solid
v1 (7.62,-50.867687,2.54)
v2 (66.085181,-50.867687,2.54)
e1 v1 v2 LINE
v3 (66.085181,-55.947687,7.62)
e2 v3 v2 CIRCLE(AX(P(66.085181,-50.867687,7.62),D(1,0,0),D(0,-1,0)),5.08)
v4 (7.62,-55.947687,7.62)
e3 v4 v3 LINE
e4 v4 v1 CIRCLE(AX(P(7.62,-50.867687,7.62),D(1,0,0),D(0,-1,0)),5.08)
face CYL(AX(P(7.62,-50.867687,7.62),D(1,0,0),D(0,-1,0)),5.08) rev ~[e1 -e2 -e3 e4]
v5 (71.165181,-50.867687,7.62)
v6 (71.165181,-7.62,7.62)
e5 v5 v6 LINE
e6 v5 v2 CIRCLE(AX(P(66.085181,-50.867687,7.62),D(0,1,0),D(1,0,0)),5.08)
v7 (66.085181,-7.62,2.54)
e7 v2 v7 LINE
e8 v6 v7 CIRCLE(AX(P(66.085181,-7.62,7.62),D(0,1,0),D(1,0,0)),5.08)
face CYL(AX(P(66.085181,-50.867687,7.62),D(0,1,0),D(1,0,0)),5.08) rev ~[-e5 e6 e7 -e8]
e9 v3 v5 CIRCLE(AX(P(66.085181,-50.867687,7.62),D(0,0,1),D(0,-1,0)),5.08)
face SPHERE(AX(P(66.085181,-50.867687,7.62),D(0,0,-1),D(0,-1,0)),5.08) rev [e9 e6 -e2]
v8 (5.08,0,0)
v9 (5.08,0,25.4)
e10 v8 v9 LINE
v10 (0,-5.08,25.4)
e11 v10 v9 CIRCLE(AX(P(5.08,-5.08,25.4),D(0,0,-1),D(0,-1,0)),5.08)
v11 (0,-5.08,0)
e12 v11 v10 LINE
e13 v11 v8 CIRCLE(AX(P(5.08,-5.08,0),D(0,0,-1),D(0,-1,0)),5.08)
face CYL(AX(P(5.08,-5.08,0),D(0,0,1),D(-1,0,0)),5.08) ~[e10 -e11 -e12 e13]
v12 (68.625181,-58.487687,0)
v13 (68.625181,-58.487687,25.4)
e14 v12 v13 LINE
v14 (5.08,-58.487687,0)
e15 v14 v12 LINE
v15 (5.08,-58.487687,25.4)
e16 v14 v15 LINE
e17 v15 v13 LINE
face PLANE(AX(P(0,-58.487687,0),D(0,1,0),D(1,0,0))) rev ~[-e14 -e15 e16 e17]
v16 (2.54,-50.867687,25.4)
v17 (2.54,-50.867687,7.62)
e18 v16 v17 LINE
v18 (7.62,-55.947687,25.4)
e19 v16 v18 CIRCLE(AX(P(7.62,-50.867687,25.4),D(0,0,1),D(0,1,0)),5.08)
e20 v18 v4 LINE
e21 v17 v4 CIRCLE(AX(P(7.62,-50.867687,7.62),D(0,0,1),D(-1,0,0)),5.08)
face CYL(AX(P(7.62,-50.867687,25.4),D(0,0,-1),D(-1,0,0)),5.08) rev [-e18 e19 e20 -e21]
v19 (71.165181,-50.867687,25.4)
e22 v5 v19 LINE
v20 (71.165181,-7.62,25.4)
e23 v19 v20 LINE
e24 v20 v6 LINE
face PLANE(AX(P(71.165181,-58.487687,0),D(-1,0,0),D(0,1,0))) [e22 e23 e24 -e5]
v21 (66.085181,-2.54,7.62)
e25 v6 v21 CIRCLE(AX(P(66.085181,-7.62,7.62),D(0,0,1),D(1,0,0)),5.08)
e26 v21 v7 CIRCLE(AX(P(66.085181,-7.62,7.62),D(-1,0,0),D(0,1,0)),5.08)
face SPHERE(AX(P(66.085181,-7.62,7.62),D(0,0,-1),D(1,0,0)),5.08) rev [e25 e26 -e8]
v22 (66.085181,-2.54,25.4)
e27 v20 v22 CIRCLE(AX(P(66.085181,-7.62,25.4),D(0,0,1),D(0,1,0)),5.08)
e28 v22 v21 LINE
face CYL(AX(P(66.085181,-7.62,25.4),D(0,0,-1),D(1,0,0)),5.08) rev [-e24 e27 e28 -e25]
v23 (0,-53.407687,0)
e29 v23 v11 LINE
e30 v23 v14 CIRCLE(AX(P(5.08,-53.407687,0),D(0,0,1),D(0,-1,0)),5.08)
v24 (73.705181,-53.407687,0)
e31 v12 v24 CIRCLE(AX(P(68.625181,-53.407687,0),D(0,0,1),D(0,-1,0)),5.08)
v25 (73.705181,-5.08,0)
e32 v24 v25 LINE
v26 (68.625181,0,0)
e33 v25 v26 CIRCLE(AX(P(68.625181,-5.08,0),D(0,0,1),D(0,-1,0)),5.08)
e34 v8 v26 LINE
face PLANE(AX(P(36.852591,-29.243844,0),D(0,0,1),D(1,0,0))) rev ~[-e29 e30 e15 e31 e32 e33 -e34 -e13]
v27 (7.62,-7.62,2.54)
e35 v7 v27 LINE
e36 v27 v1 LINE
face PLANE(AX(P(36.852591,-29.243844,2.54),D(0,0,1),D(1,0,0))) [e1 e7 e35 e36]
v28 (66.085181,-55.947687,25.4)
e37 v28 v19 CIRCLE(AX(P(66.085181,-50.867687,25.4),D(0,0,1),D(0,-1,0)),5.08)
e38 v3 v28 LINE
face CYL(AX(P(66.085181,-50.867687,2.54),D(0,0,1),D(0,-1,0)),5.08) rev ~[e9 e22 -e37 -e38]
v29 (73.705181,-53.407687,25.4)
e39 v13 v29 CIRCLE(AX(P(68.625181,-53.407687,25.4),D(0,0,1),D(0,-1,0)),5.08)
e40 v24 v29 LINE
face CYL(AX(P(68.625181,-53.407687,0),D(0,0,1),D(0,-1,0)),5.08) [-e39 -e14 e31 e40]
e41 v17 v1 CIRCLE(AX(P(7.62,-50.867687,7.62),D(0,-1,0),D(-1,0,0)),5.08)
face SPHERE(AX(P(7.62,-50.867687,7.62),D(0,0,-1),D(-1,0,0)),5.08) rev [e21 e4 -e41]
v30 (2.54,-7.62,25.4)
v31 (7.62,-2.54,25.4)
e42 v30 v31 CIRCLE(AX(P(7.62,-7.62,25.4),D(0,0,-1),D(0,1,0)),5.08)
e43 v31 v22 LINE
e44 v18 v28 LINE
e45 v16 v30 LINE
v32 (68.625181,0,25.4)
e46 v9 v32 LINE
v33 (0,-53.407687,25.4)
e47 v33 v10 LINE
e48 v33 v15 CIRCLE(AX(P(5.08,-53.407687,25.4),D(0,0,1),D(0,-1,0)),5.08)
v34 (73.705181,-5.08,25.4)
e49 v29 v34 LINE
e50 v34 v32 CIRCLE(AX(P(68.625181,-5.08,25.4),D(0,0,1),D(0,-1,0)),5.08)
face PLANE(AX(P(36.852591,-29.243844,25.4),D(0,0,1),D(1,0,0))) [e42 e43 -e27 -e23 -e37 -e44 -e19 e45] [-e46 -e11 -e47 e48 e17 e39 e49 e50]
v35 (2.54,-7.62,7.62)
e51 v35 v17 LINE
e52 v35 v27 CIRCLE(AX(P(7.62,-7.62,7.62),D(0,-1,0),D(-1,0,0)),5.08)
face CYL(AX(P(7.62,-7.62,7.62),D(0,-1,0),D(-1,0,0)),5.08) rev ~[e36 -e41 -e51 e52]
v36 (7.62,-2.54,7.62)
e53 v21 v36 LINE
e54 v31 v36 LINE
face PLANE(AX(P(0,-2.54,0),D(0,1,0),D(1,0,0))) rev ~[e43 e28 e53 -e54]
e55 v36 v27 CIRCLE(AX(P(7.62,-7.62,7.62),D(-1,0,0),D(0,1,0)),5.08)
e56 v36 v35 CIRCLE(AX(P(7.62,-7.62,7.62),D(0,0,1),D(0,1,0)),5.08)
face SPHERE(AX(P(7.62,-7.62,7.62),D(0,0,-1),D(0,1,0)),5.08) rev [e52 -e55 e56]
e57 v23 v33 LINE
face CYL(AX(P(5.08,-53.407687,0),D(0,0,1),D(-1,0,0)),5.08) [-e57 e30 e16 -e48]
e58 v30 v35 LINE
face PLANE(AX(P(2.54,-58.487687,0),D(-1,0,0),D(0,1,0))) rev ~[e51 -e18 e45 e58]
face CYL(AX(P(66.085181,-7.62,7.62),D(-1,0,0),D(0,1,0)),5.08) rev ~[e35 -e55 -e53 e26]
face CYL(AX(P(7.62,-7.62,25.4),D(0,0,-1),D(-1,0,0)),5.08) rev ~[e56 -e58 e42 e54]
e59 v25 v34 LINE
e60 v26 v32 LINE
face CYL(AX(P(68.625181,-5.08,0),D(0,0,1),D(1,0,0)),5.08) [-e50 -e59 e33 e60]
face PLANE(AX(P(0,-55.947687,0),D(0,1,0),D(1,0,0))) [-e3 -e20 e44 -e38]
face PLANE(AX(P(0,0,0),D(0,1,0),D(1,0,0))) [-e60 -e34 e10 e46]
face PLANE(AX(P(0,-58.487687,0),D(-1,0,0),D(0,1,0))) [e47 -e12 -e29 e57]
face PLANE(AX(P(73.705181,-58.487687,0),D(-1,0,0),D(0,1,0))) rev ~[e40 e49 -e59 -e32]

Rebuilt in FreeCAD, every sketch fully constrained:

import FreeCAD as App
import Part
import Sketcher
Q = App.Units.Quantity


def edges_at(feature, points):
    """Names of the edges that pass closest to the given points."""
    edges = feature.Shape.Edges
    near = lambda p: min(range(len(edges)), key=lambda i: edges[i].distToShape(Part.Vertex(*p))[0])
    return sorted({f"Edge{near(p) + 1}" for p in points})


def faces_at(feature, points):
    """Names of the faces that lie closest to the given points."""
    faces = feature.Shape.Faces
    near = lambda p: min(range(len(faces)), key=lambda i: faces[i].distToShape(Part.Vertex(*p))[0])
    return sorted({f"Face{near(p) + 1}" for p in points})

doc = App.newDocument("Part")
params = doc.addObject("Spreadsheet::Sheet", "Params")
for row, (alias, value) in enumerate([
    ("pad1_length", "1 in"),
    ("thickness_wall", "0.1 in"),
    ("fillet_radius", "0.2 in"),
    ("fillet2_radius", "0.2 in"),
], start=1):
    params.set(f"A{row}", alias)
    params.set(f"B{row}", "=" + value)
    params.setAlias(f"B{row}", alias)

body = doc.addObject("PartDesign::Body", "Body")

sketch1 = body.newObject("Sketcher::SketchObject", "Sketch")
sketch1.AttachmentSupport = (doc.getObject("XY_Plane"), [""])
sketch1.MapMode = "FlatFace"
sketch1.addGeometry([
    Part.LineSegment(App.Vector(0, 0, 0), App.Vector(0, -58, 0)),
    Part.LineSegment(App.Vector(0, -58, 0), App.Vector(74, -58, 0)),
    Part.LineSegment(App.Vector(74, -58, 0), App.Vector(74, 0, 0)),
    Part.LineSegment(App.Vector(74, 0, 0), App.Vector(0, 0, 0)),
], False)
sketch1.addConstraint([
    Sketcher.Constraint("Coincident", 0, 2, 1, 1),
    Sketcher.Constraint("Coincident", 1, 2, 2, 1),
    Sketcher.Constraint("Coincident", 2, 2, 3, 1),
    Sketcher.Constraint("Coincident", 3, 2, 0, 1),
    Sketcher.Constraint("Vertical", 0),
    Sketcher.Constraint("Horizontal", 1),
    Sketcher.Constraint("Vertical", 2),
    Sketcher.Constraint("Horizontal", 3),
    Sketcher.Constraint("Coincident", 3, 2, -1, 1),
    Sketcher.Constraint("DistanceX", 1, 1, 1, 2, Q("73.705181 mm")),
    Sketcher.Constraint("DistanceY", 0, 2, 0, 1, Q("58.487687 mm")),
])
pad1 = body.newObject("PartDesign::Pad", "Pad")
pad1.Profile = sketch1
pad1.setExpression("Length", "Params.pad1_length")
doc.recompute()

thickness = body.newObject("PartDesign::Thickness", "Thickness")
thickness.Base = (pad1, faces_at(pad1, [(36.853, -29.244, 25.4)]))
thickness.setExpression("Value", "Params.thickness_wall")
thickness.Reversed = True
thickness.Join = "Arc"
doc.recompute()

fillet = body.newObject("PartDesign::Fillet", "Fillet")
fillet.Base = (thickness, edges_at(thickness, [
    (0, -58.488, 12.7),
    (0, 0, 12.7),
    (2.54, -55.948, 13.97),
    (2.54, -2.54, 13.97),
    (73.705, 0, 12.7),
    (71.165, -2.54, 13.97),
    (71.165, -55.948, 13.97),
    (73.705, -58.488, 12.7),
]))
fillet.setExpression("Radius", "Params.fillet_radius")
doc.recompute()

fillet2 = body.newObject("PartDesign::Fillet", "Fillet001")
fillet2.Base = (fillet, edges_at(fillet, [(71.165, -29.244, 2.54)]))
fillet2.setExpression("Radius", "Params.fillet2_radius")

doc.recompute()
